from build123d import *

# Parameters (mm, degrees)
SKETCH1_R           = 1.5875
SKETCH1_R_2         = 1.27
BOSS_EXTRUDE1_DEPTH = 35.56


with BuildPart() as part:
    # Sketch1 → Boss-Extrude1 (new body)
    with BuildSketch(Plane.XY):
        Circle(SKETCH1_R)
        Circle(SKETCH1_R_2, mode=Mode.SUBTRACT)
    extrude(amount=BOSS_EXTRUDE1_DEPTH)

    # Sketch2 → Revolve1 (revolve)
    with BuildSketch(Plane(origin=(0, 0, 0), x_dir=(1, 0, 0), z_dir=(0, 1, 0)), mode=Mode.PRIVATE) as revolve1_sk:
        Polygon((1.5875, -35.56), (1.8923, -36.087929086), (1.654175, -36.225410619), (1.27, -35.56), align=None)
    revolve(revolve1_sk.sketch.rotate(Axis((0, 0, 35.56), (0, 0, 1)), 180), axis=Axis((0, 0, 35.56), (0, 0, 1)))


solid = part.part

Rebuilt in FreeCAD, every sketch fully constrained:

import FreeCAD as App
import Part
import Sketcher

V = App.Vector
Q = App.Units.Quantity

doc = App.newDocument("Part")
body = doc.addObject("PartDesign::Body", "Body")

# Sketch on XY plane
sketch1 = doc.addObject("Sketcher::SketchObject", "Sketch")
body.addObject(sketch1)
sketch1.AttachmentSupport = (doc.XY_Plane, [""])
sketch1.MapMode = "FlatFace"
sketch1.addGeometry([
    Part.Circle(V(0, 0, 0), V(0, 0, 1), 1.6),
    Part.Circle(V(0, 0, 0), V(0, 0, 1), 1.3),
], False)
sketch1.addConstraint([
    Sketcher.Constraint("Coincident", 0, 3, -1, 1),
    Sketcher.Constraint("Coincident", 1, 3, -1, 1),
    Sketcher.Constraint("Diameter", 1, Q("0.1 in")),
    Sketcher.Constraint("Diameter", 0, Q("0.125 in")),
])
pad1 = doc.addObject("PartDesign::Pad", "Pad")
body.addObject(pad1)
pad1.Profile = sketch1
pad1.Length = Q("1.4 in")

# Sketch on XZ plane
sketch2 = doc.addObject("Sketcher::SketchObject", "Sketch001")
body.addObject(sketch2)
sketch2.AttachmentSupport = (doc.XZ_Plane, [""])
sketch2.MapMode = "FlatFace"
sketch2.addGeometry([
    Part.LineSegment(V(1.89, 36.09, 0), V(1.59, 35.56, 0)),
    Part.LineSegment(V(1.59, 35.56, 0), V(1.27, 35.56, 0)),
    Part.LineSegment(V(1.27, 35.56, 0), V(1.65, 36.23, 0)),
    Part.LineSegment(V(1.65, 36.23, 0), V(1.89, 36.09, 0)),
], False)
sketch2.addConstraint([
    Sketcher.Constraint("Coincident", 0, 2, 1, 1),
    Sketcher.Constraint("Coincident", 1, 2, 2, 1),
    Sketcher.Constraint("Coincident", 2, 2, 3, 1),
    Sketcher.Constraint("Coincident", 3, 2, 0, 1),
    Sketcher.Constraint("Horizontal", 1),
    Sketcher.Constraint("Parallel", 0, 2),
    Sketcher.Constraint("Perpendicular", 2, 3),
    Sketcher.Constraint("Angle", 0, Q("-120 deg")),
    Sketcher.Constraint("DistanceY", -1, 1, 0, 2, Q("1.4 in")),
    Sketcher.Constraint("DistanceX", -1, 1, 1, 2, Q("0.05 in")),
    Sketcher.Constraint("Distance", 0, Q("0.024 in")),
    Sketcher.Constraint("DistanceX", 1, 2, 1, 1, Q("0.0125 in")),
])
revolution = doc.addObject("PartDesign::Revolution", "Revolution")
body.addObject(revolution)
revolution.Profile = sketch2
revolution.ReferenceAxis = (sketch2, ["V_Axis"])
revolution.Angle = 360

doc.recompute()
